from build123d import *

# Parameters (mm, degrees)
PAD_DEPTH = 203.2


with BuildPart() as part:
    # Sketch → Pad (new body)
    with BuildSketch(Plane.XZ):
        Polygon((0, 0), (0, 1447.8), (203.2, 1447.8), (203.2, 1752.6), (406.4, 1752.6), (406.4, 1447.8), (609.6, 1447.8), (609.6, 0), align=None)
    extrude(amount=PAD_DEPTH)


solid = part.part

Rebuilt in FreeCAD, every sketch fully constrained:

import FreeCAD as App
import Part
import Sketcher
from FreeCAD import Vector
Q = App.Units.Quantity

doc = App.newDocument("Part")
body = doc.addObject("PartDesign::Body", "Body")

sketch1 = doc.addObject("Sketcher::SketchObject", "Sketch")
body.addObject(sketch1)
sketch1.AttachmentSupport = (doc.XZ_Plane, [""])
sketch1.MapMode = "FlatFace"
sketch1.addGeometry([
    Part.LineSegment(Vector(0, 1447.8, 0), Vector(0, 0, 0)),
    Part.LineSegment(Vector(0, 0, 0), Vector(609.6, 0, 0)),
    Part.LineSegment(Vector(609.6, 0, 0), Vector(609.6, 1447.8, 0)),
    Part.LineSegment(Vector(609.6, 1447.8, 0), Vector(406.4, 1447.8, 0)),
    Part.LineSegment(Vector(406.4, 1447.8, 0), Vector(406.4, 1752.6, 0)),
    Part.LineSegment(Vector(406.4, 1752.6, 0), Vector(203.2, 1752.6, 0)),
    Part.LineSegment(Vector(203.2, 1752.6, 0), Vector(203.2, 1447.8, 0)),
    Part.LineSegment(Vector(203.2, 1447.8, 0), Vector(0, 1447.8, 0)),
], False)
sketch1.addConstraint([
    Sketcher.Constraint("Coincident", 0, 2, 1, 1),
    Sketcher.Constraint("Coincident", 1, 2, 2, 1),
    Sketcher.Constraint("Coincident", 2, 2, 3, 1),
    Sketcher.Constraint("Coincident", 3, 2, 4, 1),
    Sketcher.Constraint("Coincident", 4, 2, 5, 1),
    Sketcher.Constraint("Coincident", 5, 2, 6, 1),
    Sketcher.Constraint("Coincident", 6, 2, 7, 1),
    Sketcher.Constraint("Coincident", 7, 2, 0, 1),
    Sketcher.Constraint("Vertical", 0),
    Sketcher.Constraint("Horizontal", 1),
    Sketcher.Constraint("Vertical", 2),
    Sketcher.Constraint("Horizontal", 3),
    Sketcher.Constraint("Vertical", 4),
    Sketcher.Constraint("Horizontal", 5),
    Sketcher.Constraint("Vertical", 6),
    Sketcher.Constraint("Horizontal", 7),
    Sketcher.Constraint("Coincident", 0, 2, -1, 1),
    Sketcher.Constraint("Horizontal", 3, 2, 6, 2),
    Sketcher.Constraint("Equal", 3, 5),
    Sketcher.Constraint("Equal", 5, 7),
    Sketcher.Constraint("DistanceX", 1, 1, 1, 2, Q("24 in")),
    Sketcher.Constraint("DistanceY", 0, 2, 0, 1, Q("57 in")),
    Sketcher.Constraint("DistanceY", 4, 1, 4, 2, Q("12 in")),
])
pad1 = doc.addObject("PartDesign::Pad", "Pad")
body.addObject(pad1)
pad1.Profile = sketch1
pad1.Length = Q("8 in")

doc.recompute()
